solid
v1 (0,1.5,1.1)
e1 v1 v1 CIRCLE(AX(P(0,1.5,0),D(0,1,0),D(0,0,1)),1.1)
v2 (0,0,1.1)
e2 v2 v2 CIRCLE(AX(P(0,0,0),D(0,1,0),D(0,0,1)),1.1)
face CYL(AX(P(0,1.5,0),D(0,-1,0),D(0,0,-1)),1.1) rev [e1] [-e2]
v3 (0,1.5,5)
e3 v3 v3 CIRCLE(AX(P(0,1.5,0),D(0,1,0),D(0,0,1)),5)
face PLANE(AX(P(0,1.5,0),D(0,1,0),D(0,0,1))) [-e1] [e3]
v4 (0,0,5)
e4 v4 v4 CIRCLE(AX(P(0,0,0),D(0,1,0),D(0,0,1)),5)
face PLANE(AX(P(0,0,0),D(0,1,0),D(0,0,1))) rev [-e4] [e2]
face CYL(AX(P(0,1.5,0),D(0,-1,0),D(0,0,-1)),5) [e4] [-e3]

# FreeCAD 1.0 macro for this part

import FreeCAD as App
import Part
import Sketcher
from FreeCAD import Vector

doc = App.newDocument("Part")
params = doc.addObject("Spreadsheet::Sheet", "Params")
for row, (alias, value) in enumerate([
    ("sketch1_diameter", "10 mm"),
    ("sketch1_diameter2", "2.2 mm"),
    ("pad1_length", "1.5 mm"),
], start=1):
    params.set(f"A{row}", alias)
    params.set(f"B{row}", "=" + value)
    params.setAlias(f"B{row}", alias)

body = doc.addObject("PartDesign::Body", "Body")

sketch1 = body.newObject("Sketcher::SketchObject", "Sketch")
sketch1.AttachmentSupport = (doc.getObject("XZ_Plane"), [""])
sketch1.MapMode = "FlatFace"
sketch1.addGeometry(Part.Circle(Vector(0, 0, 0), Vector(0, 0, 1), 5), False)
sketch1.addGeometry(Part.Circle(Vector(0, 0, 0), Vector(0, 0, 1), 1.1), False)
sketch1.addConstraint(Sketcher.Constraint("Coincident", 0, 3, -1, 1))
sketch1.addConstraint(Sketcher.Constraint("Coincident", 1, 3, -1, 1))
sketch1.addConstraint(Sketcher.Constraint("Diameter", 0, 10.0))
sketch1.addConstraint(Sketcher.Constraint("Diameter", 1, 2.2))
sketch1.setExpression("Constraints[2]", "Params.sketch1_diameter")
sketch1.setExpression("Constraints[3]", "Params.sketch1_diameter2")
pad1 = body.newObject("PartDesign::Pad", "Pad")
pad1.Profile = sketch1
pad1.setExpression("Length", "Params.pad1_length")
pad1.Reversed = True

doc.recompute()
